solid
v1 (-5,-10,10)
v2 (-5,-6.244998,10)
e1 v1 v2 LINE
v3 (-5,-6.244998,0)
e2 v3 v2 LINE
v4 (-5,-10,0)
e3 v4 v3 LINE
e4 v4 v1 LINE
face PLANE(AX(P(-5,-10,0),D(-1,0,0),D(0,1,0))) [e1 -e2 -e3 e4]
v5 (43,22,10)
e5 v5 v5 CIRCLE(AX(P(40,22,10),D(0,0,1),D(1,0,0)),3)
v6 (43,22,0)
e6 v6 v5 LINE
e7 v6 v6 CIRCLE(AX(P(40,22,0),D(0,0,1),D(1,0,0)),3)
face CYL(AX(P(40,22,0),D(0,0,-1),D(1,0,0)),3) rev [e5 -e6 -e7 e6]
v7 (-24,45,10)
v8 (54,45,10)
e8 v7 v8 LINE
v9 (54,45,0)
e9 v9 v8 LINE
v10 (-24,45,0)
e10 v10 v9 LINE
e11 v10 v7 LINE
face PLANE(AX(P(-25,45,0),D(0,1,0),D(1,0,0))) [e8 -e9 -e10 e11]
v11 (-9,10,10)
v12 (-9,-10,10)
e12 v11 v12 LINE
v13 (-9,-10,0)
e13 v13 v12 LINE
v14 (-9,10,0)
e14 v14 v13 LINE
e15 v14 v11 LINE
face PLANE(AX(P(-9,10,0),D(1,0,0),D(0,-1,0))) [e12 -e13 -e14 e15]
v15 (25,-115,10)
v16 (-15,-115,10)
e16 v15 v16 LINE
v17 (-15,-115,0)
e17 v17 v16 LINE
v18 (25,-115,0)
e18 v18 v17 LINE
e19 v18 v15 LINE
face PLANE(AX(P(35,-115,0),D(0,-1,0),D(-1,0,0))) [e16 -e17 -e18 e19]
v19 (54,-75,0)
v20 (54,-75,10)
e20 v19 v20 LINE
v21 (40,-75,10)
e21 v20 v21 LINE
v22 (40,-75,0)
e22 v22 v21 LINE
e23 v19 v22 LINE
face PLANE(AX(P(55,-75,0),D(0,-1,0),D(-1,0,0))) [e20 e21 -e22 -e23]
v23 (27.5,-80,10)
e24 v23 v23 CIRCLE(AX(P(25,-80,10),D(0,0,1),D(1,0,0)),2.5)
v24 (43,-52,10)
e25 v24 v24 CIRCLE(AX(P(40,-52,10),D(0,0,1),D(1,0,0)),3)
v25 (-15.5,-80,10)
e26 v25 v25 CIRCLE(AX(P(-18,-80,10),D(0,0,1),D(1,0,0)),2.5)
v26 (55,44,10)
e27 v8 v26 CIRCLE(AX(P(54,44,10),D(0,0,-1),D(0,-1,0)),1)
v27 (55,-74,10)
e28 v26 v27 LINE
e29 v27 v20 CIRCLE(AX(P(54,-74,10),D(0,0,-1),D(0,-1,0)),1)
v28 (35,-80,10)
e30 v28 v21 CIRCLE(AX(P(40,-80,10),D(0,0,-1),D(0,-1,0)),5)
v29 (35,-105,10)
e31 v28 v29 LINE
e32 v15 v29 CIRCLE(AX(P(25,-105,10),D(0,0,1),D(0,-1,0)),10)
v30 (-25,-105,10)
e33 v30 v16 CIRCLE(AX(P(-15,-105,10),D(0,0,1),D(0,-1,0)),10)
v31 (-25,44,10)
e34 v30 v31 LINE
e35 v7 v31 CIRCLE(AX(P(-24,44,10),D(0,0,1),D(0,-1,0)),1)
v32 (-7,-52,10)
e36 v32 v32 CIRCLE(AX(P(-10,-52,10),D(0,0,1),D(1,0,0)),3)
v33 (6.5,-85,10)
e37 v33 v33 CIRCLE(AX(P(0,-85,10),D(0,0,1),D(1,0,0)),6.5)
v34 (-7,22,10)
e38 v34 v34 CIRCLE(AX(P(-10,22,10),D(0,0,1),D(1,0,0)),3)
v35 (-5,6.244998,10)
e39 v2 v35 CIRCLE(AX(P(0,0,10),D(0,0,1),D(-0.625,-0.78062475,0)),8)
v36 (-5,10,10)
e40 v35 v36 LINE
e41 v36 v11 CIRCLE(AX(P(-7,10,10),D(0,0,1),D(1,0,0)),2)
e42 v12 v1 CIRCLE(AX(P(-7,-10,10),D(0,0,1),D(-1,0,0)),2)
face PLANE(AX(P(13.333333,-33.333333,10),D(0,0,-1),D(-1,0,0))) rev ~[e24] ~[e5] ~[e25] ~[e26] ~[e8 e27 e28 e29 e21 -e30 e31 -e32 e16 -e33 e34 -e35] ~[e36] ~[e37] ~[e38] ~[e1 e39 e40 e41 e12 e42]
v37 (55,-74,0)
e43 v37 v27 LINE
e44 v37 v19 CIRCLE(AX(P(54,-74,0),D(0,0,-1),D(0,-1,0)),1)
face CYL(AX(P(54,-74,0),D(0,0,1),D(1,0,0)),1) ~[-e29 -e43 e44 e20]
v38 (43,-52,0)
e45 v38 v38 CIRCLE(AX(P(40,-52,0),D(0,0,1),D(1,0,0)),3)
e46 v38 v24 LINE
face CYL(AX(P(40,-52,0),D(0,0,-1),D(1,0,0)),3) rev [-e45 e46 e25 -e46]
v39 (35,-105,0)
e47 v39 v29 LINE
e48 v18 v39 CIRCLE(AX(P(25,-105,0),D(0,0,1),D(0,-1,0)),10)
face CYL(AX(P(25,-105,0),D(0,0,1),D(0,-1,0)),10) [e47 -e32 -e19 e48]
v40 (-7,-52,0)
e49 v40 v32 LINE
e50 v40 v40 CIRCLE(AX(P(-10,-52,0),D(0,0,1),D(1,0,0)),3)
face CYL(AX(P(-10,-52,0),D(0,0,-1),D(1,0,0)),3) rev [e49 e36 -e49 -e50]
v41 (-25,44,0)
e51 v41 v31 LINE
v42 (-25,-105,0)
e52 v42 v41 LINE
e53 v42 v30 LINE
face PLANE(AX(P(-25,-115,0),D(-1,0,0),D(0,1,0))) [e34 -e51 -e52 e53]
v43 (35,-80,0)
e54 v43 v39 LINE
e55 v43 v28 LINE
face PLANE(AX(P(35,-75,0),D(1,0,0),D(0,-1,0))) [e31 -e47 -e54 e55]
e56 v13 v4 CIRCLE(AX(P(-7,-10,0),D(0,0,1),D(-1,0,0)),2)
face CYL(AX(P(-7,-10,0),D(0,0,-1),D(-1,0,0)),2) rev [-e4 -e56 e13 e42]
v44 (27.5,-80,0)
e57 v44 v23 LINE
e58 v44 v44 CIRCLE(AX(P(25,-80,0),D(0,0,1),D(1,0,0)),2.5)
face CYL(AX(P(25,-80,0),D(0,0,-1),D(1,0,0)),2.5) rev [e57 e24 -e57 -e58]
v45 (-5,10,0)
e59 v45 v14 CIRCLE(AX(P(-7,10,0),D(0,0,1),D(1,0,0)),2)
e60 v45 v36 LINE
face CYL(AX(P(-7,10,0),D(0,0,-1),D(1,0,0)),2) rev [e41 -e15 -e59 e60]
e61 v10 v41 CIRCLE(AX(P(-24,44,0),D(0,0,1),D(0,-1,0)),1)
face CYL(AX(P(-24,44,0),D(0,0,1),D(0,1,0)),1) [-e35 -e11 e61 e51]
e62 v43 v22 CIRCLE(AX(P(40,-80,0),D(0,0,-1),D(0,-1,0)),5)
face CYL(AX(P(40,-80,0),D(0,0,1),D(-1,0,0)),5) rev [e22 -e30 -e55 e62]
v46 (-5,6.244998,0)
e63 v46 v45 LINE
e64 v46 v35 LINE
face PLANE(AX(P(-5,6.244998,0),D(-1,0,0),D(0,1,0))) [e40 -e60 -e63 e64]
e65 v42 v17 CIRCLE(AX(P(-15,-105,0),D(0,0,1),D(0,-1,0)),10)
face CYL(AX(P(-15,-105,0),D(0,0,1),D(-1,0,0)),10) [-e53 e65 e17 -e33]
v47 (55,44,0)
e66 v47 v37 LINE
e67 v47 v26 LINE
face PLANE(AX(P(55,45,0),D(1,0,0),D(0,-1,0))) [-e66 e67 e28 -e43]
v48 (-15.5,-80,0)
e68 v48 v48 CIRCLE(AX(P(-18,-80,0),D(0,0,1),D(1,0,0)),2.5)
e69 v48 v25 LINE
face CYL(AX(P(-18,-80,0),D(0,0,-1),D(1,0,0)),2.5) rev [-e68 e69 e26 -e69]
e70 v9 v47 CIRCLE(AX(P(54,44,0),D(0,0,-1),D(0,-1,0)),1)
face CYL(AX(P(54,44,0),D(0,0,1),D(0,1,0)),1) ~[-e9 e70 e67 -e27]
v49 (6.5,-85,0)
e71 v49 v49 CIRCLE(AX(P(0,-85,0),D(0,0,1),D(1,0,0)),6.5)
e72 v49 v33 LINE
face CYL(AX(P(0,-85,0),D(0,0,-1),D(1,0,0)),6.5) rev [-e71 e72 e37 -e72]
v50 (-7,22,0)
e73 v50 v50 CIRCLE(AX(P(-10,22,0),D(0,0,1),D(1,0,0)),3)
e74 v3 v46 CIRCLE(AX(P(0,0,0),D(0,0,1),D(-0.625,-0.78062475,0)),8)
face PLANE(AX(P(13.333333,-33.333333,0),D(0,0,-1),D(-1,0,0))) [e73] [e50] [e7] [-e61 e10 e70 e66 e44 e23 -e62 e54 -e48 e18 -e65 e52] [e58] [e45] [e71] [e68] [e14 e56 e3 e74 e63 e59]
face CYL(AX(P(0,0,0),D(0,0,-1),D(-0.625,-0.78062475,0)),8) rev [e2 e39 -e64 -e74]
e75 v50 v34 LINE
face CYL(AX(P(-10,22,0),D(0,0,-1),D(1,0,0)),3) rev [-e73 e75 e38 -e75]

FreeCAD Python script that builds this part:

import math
import FreeCAD as App
import Part
import Sketcher


def edges_at(feature, points):
    """Names of the edges that pass closest to the given points."""
    edges = feature.Shape.Edges
    near = lambda p: min(range(len(edges)), key=lambda i: edges[i].distToShape(Part.Vertex(*p))[0])
    return sorted({f"Edge{near(p) + 1}" for p in points})


def add_polygon(sketch, points):
    """Adds a closed chain of lines whose ends are joined by coincident constraints."""
    first, n = sketch.GeometryCount, len(points)
    for a, b in zip(points, points[1:] + points[:1]):
        sketch.addGeometry(Part.LineSegment(App.Vector(*a, 0), App.Vector(*b, 0)), False)
    for i in range(n):
        sketch.addConstraint(Sketcher.Constraint("Coincident", first + i, 2, first + (i + 1) % n, 1))

doc = App.newDocument("Part")
body = doc.addObject("PartDesign::Body", "Body")

# Sketch on XY plane
sketch1 = doc.addObject("Sketcher::SketchObject", "Sketch")
body.addObject(sketch1)
sketch1.AttachmentSupport = (doc.XY_Plane, [""])
sketch1.MapMode = "FlatFace"
add_polygon(sketch1, [(55, 45), (-25, 45), (-25, -115), (35, -115), (35, -75), (55, -75)])  # lines 0-5
sketch1.addGeometry(Part.Circle(App.Vector(25, -80, 0), App.Vector(0, 0, 1), 2.5), False)  # 6
sketch1.addGeometry(Part.Circle(App.Vector(40, -52, 0), App.Vector(0, 0, 1), 3), False)  # 7
sketch1.addGeometry(Part.Circle(App.Vector(0, -85, 0), App.Vector(0, 0, 1), 6.5), False)  # 8
sketch1.addGeometry(Part.Circle(App.Vector(-18, -80, 0), App.Vector(0, 0, 1), 2.5), False)  # 9
sketch1.addGeometry(Part.Circle(App.Vector(-10, -52, 0), App.Vector(0, 0, 1), 3), False)  # 10
sketch1.addGeometry(Part.Circle(App.Vector(40, 22, 0), App.Vector(0, 0, 1), 3), False)  # 11
sketch1.addGeometry(Part.LineSegment(App.Vector(-5, -6.2, 0), App.Vector(-5, -10, 0)), False)  # 12
sketch1.addGeometry(Part.ArcOfCircle(Part.Circle(App.Vector(-7, -10, 0), App.Vector(0, 0, 1), 2), math.radians(180), math.radians(360)), False)  # 13
sketch1.addGeometry(Part.LineSegment(App.Vector(-9, -10, 0), App.Vector(-9, 10, 0)), False)  # 14
sketch1.addGeometry(Part.ArcOfCircle(Part.Circle(App.Vector(-7, 10, 0), App.Vector(0, 0, 1), 2), math.radians(0), math.radians(180)), False)  # 15
sketch1.addGeometry(Part.LineSegment(App.Vector(-5, 10, 0), App.Vector(-5, 6.2, 0)), False)  # 16
sketch1.addGeometry(Part.ArcOfCircle(Part.Circle(App.Vector(0, 0, 0), App.Vector(0, 0, 1), 8), math.radians(-129), math.radians(129)), False)  # 17
sketch1.addGeometry(Part.Circle(App.Vector(-10, 22, 0), App.Vector(0, 0, 1), 3), False)  # 18
sketch1.addConstraint([
    Sketcher.Constraint("Tangent", 12, 2, 13, 2),
    Sketcher.Constraint("Tangent", 13, 1, 14, 1),
    Sketcher.Constraint("Tangent", 14, 2, 15, 2),
    Sketcher.Constraint("Tangent", 15, 1, 16, 1),
    Sketcher.Constraint("Coincident", 16, 2, 17, 2),
    Sketcher.Constraint("Coincident", 17, 1, 12, 1),
    Sketcher.Constraint("Horizontal", 0),
    Sketcher.Constraint("Vertical", 1),
    Sketcher.Constraint("Horizontal", 2),
    Sketcher.Constraint("Vertical", 3),
    Sketcher.Constraint("Horizontal", 4),
    Sketcher.Constraint("Vertical", 5),
    Sketcher.Constraint("Vertical", 12),
    Sketcher.Constraint("Vertical", 14),
    Sketcher.Constraint("Vertical", 16),
    Sketcher.Constraint("Coincident", 17, 3, -1, 1),
    Sketcher.Constraint("Equal", 6, 9),
    Sketcher.Constraint("Equal", 7, 10),
    Sketcher.Constraint("Equal", 10, 11),
    Sketcher.Constraint("Equal", 13, 15),
    Sketcher.Constraint("Equal", 11, 18),
    Sketcher.Constraint("PointOnObject", 8, 3, -2),
    Sketcher.Constraint("Horizontal", 6, 3, 9, 3),
    Sketcher.Constraint("Horizontal", 7, 3, 10, 3),
    Sketcher.Constraint("Horizontal", 11, 3, 18, 3),
    Sketcher.Constraint("Vertical", 7, 3, 11, 3),
    Sketcher.Constraint("Vertical", 10, 3, 18, 3),
    Sketcher.Constraint("Equal", 4, 14),
    Sketcher.Constraint("Equal", 12, 16),
    Sketcher.Constraint("Diameter", 6, 5.0),
    Sketcher.Constraint("Diameter", 7, 6.0),
    Sketcher.Constraint("Diameter", 8, 13.0),
    Sketcher.Constraint("Radius", 13, 2.0),
    Sketcher.Constraint("Radius", 17, 8.0),
    Sketcher.Constraint("DistanceX", 0, 2, 0, 1, 80.0),
    Sketcher.Constraint("DistanceX", 2, 1, 2, 2, 60.0),
    Sketcher.Constraint("DistanceY", 1, 2, 1, 1, 160.0),
    Sketcher.Constraint("DistanceY", 3, 1, 3, 2, 40.0),
    Sketcher.Constraint("DistanceX", -1, 1, 6, 3, 25.0),
    Sketcher.Constraint("DistanceY", 6, 3, -1, 1, 80.0),
    Sketcher.Constraint("DistanceX", -1, 1, 7, 3, 40.0),
    Sketcher.Constraint("DistanceY", 7, 3, -1, 1, 52.0),
    Sketcher.Constraint("DistanceY", 8, 3, -1, 1, 85.0),
    Sketcher.Constraint("DistanceX", 9, 3, -1, 1, 18.0),
    Sketcher.Constraint("DistanceX", 10, 3, -1, 1, 10.0),
    Sketcher.Constraint("DistanceY", -1, 1, 11, 3, 22.0),
    Sketcher.Constraint("DistanceX", 13, 3, -1, 1, 7.0),
    Sketcher.Constraint("DistanceX", 0, 2, -1, 1, 25.0),
    Sketcher.Constraint("DistanceY", -1, 1, 0, 2, 45.0),
])
pad1 = doc.addObject("PartDesign::Pad", "Pad")
body.addObject(pad1)
pad1.Profile = sketch1
pad1.Length = 10
doc.recompute()

fillet = doc.addObject("PartDesign::Fillet", "Fillet")
body.addObject(fillet)
fillet.Base = (pad1, edges_at(pad1, [(55, -75, 5), (55, 45, 5), (-25, 45, 5)]))
fillet.Radius = 1
doc.recompute()

fillet2 = doc.addObject("PartDesign::Fillet", "Fillet001")
body.addObject(fillet2)
fillet2.Base = (fillet, edges_at(fillet, [(35, -115, 5), (-25, -115, 5)]))
fillet2.Radius = 10
doc.recompute()

fillet3 = doc.addObject("PartDesign::Fillet", "Fillet002")
body.addObject(fillet3)
fillet3.Base = (fillet2, edges_at(fillet2, [(35, -75, 5)]))
fillet3.Radius = 5

doc.recompute()
